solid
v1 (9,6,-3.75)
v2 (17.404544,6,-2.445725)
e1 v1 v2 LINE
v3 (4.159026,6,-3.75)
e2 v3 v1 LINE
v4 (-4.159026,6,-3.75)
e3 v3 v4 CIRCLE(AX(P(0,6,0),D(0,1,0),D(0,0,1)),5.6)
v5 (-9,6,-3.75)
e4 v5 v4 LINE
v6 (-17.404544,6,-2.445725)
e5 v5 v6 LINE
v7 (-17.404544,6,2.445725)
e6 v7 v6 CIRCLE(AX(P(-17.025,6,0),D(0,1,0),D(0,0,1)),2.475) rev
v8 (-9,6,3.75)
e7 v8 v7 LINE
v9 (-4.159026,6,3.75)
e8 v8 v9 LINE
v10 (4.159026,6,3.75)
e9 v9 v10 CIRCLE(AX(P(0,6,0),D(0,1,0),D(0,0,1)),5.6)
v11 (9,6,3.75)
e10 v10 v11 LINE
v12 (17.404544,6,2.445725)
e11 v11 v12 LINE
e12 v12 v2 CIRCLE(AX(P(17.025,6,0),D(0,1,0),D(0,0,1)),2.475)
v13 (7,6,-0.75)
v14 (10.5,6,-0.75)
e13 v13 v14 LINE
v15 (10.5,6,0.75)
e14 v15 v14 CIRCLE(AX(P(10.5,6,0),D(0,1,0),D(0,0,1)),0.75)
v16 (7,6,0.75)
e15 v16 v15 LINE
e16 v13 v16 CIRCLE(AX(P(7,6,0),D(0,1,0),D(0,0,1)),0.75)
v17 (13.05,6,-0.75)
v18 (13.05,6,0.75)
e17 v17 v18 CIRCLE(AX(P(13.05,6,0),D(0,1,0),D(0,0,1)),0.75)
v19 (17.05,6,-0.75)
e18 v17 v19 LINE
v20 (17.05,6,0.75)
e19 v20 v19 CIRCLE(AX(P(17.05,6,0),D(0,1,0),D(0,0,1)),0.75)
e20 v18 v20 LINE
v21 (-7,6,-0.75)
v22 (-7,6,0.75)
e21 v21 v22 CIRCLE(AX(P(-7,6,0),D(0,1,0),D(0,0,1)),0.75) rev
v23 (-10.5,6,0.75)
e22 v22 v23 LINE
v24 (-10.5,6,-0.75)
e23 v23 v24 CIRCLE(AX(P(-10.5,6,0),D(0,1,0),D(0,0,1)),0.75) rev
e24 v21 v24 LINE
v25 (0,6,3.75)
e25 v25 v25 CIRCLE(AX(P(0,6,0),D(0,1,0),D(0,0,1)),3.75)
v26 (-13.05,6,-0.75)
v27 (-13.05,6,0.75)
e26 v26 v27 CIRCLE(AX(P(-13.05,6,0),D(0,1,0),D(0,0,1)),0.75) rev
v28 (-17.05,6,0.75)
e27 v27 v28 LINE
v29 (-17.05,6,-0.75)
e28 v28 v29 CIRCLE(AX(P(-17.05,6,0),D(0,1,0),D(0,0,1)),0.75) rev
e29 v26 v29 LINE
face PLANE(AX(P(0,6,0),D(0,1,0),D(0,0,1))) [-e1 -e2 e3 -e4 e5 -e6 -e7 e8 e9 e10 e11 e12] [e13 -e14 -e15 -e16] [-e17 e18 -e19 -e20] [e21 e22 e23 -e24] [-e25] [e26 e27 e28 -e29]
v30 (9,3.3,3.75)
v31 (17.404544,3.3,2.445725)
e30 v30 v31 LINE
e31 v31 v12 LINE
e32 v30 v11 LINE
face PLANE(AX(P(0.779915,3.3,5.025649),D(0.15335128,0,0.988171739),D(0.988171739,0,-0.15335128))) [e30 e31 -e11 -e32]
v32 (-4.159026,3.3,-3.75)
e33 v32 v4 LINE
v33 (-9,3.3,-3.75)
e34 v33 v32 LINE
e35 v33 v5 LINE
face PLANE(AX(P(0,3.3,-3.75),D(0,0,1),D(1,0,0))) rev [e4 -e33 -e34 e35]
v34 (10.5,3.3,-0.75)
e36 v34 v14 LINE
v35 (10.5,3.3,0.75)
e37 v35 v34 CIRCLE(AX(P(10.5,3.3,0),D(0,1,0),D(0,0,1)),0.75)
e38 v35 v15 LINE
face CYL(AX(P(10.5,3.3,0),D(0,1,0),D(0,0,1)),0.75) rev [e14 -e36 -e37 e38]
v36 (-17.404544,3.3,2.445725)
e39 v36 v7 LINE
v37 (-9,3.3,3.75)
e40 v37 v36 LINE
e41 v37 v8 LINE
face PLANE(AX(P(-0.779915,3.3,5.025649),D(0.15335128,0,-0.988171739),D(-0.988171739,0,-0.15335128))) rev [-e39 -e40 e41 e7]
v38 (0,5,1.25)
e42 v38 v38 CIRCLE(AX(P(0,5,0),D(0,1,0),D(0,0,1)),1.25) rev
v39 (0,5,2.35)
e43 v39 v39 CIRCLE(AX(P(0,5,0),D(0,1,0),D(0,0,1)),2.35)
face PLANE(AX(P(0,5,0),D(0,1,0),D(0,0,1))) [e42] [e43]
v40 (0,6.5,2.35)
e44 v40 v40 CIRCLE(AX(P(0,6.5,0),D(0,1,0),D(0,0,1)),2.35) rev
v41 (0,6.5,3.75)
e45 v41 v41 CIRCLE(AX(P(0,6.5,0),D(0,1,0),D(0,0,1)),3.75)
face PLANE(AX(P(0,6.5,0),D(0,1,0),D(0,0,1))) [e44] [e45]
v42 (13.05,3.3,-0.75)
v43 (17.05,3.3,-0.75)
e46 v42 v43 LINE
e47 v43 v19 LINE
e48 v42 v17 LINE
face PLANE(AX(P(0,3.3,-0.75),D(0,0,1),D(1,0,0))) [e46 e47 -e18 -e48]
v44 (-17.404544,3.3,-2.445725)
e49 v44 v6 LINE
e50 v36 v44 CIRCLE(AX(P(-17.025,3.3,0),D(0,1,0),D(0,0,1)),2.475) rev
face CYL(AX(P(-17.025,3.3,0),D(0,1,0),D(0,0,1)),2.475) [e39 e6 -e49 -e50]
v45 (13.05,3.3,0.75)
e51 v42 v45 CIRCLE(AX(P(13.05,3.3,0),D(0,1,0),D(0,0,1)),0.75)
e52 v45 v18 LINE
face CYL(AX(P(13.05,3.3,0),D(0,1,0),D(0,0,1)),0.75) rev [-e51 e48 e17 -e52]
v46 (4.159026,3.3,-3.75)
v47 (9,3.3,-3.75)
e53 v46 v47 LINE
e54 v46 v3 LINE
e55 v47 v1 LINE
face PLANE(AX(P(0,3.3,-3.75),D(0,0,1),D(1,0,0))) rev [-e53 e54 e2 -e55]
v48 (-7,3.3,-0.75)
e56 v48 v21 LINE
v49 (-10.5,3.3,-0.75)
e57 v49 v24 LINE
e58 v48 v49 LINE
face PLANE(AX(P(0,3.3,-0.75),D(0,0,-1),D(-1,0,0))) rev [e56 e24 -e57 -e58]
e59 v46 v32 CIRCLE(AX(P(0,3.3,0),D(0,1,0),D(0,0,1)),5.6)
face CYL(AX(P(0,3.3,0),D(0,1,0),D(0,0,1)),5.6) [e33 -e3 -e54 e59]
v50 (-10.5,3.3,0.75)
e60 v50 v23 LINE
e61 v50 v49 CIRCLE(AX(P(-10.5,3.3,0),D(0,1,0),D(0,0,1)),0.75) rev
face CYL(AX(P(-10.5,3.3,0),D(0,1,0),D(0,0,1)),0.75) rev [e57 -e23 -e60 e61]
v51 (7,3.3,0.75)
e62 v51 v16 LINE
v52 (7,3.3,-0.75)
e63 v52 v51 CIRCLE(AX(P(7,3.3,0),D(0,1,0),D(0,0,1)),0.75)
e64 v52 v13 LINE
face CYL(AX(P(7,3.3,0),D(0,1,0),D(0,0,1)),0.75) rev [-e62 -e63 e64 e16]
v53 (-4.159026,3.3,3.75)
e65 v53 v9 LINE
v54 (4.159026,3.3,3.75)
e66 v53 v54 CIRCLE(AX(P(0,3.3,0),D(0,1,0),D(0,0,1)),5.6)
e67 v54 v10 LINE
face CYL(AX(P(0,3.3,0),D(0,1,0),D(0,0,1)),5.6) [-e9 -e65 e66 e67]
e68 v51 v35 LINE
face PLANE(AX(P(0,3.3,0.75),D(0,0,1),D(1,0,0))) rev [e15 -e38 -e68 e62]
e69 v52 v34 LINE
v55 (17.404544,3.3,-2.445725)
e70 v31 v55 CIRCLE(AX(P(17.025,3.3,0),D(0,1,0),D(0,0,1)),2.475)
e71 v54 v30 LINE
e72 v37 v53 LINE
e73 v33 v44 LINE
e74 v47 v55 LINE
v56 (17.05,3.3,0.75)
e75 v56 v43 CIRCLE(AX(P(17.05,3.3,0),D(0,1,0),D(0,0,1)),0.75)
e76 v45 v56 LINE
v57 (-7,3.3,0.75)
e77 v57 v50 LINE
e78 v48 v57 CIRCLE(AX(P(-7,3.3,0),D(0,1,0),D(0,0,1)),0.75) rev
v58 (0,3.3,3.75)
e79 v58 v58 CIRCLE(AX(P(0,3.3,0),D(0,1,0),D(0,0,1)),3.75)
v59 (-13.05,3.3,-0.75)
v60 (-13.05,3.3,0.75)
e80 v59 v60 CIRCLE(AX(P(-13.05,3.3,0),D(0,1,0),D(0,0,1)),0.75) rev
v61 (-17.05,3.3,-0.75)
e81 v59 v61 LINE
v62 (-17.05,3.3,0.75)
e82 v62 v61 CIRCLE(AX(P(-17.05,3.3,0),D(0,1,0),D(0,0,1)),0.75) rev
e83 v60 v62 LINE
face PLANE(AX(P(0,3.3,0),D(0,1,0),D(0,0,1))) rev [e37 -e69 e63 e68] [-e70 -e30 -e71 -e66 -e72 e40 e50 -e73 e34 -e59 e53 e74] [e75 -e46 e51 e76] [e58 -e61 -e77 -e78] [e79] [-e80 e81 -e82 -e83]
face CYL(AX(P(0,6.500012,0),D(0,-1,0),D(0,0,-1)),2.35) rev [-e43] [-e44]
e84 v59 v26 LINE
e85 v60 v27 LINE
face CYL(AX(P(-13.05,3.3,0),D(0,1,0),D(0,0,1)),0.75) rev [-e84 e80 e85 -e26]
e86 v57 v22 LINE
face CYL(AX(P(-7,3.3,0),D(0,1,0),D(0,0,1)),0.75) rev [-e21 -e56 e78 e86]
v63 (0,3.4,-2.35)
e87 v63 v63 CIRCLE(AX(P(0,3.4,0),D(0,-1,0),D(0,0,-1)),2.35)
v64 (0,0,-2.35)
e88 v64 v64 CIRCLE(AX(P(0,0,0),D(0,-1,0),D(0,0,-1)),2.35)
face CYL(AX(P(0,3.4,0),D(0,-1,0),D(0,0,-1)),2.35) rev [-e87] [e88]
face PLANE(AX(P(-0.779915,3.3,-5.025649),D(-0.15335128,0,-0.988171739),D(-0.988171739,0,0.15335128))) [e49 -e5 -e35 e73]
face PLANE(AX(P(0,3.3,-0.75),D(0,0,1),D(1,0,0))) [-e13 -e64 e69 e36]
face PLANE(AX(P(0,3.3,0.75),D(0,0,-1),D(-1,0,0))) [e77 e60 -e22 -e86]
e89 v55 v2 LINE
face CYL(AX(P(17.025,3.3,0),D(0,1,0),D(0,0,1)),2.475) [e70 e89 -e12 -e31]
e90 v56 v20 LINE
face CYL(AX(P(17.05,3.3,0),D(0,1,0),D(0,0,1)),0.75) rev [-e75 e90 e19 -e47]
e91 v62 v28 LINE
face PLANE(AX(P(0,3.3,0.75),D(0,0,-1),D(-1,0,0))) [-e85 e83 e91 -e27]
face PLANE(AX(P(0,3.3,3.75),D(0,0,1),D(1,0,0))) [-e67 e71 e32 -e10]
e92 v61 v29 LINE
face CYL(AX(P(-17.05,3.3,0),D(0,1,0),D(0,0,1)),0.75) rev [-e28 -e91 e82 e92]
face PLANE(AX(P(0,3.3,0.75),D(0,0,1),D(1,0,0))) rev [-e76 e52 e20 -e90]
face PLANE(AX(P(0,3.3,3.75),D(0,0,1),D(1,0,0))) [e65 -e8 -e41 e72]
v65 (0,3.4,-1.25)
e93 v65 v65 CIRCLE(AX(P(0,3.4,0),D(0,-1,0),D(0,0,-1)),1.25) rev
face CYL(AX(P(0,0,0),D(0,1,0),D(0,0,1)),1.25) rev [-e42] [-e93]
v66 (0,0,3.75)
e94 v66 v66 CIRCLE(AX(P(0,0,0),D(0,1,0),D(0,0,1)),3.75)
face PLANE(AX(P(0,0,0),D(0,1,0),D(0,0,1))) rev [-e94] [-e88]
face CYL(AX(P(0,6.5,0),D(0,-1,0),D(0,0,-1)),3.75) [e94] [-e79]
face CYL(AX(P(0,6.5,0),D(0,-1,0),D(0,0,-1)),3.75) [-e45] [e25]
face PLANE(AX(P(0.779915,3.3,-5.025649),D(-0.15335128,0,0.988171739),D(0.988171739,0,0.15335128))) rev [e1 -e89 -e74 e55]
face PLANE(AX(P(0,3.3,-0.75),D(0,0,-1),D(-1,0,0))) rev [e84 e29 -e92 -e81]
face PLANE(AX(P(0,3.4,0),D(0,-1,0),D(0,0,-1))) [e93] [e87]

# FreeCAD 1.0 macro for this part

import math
import FreeCAD as App
import Part
import Sketcher
from FreeCAD import Vector
Q = App.Units.Quantity

doc = App.newDocument("Part")
body = doc.addObject("PartDesign::Body", "Body")

sketch1 = doc.addObject("Sketcher::SketchObject", "Sketch")
body.addObject(sketch1)
sketch1.AttachmentSupport = (doc.XZ_Plane, [""])
sketch1.MapMode = "FlatFace"
sketch1.addGeometry(Part.Circle(Vector(0, 0, 0), Vector(0, 0, 1), 3.8), False)
sketch1.addConstraint(Sketcher.Constraint("Coincident", 0, 3, -1, 1))
sketch1.addConstraint(Sketcher.Constraint("Diameter", 0, Q("7.5 mm")))
pad1 = doc.addObject("PartDesign::Pad", "Pad")
body.addObject(pad1)
pad1.Profile = sketch1
pad1.Length = 6.5
pad1.Reversed = True

sketch2 = doc.addObject("Sketcher::SketchObject", "Sketch001")
body.addObject(sketch2)
sketch2.AttachmentSupport = (doc.XZ_Plane, [""])
sketch2.MapMode = "FlatFace"
sketch2.AttachmentOffset = App.Placement(Vector(0, 0, -6.5), App.Rotation())
sketch2.addGeometry(Part.Circle(Vector(0, 0, 0), Vector(0, 0, 1), 1.2), False)
sketch2.addConstraint(Sketcher.Constraint("Coincident", 0, 3, -1, 1))
sketch2.addConstraint(Sketcher.Constraint("Diameter", 0, Q("2.5 mm")))
pocket1 = doc.addObject("PartDesign::Pocket", "Pocket")
body.addObject(pocket1)
pocket1.Profile = sketch2
pocket1.Type = "ThroughAll"
pocket1.Midplane = True

sketch3 = doc.addObject("Sketcher::SketchObject", "Sketch002")
body.addObject(sketch3)
sketch3.AttachmentSupport = (doc.XZ_Plane, [""])
sketch3.MapMode = "FlatFace"
sketch3.AttachmentOffset = App.Placement(Vector(0, 0, -6.5), App.Rotation())
sketch3.addGeometry(Part.Circle(Vector(0, 0, 0), Vector(0, 0, 1), 2.4), False)
sketch3.addConstraint(Sketcher.Constraint("Coincident", 0, 3, -1, 1))
sketch3.addConstraint(Sketcher.Constraint("Diameter", 0, Q("4.7 mm")))
pocket2 = doc.addObject("PartDesign::Pocket", "Pocket001")
body.addObject(pocket2)
pocket2.Profile = sketch3
pocket2.Type = "TwoLengths"
pocket2.Length = 1
pocket2.Length2 = 1.5

sketch4 = doc.addObject("Sketcher::SketchObject", "Sketch003")
body.addObject(sketch4)
sketch4.AttachmentSupport = (doc.XZ_Plane, [""])
sketch4.MapMode = "FlatFace"
sketch4.addGeometry(Part.Circle(Vector(0, 0, 0), Vector(0, 0, 1), 2.4), False)
sketch4.addConstraint(Sketcher.Constraint("Coincident", 0, 3, -1, 1))
sketch4.addConstraint(Sketcher.Constraint("Diameter", 0, Q("4.7 mm")))
pocket3 = doc.addObject("PartDesign::Pocket", "Pocket002")
body.addObject(pocket3)
pocket3.Profile = sketch4
pocket3.Length = 3.4

sketch5 = doc.addObject("Sketcher::SketchObject", "Sketch004")
body.addObject(sketch5)
sketch5.AttachmentSupport = (doc.XZ_Plane, [""])
sketch5.MapMode = "FlatFace"
sketch5.AttachmentOffset = App.Placement(Vector(0, 0, -6), App.Rotation())
sketch5.addGeometry(Part.LineSegment(Vector(-9, 3.8, 0), Vector(-4.2, 3.8, 0)), False)
sketch5.addGeometry(Part.ArcOfCircle(Part.Circle(Vector(0, 0, 0), Vector(0, 0, 1), 5.6), math.radians(42), math.radians(138)), False)
sketch5.addGeometry(Part.LineSegment(Vector(4.2, 3.8, 0), Vector(9, 3.8, 0)), False)
sketch5.addGeometry(Part.LineSegment(Vector(9, 3.8, 0), Vector(17.4, 2.4, 0)), False)
sketch5.addGeometry(Part.ArcOfCircle(Part.Circle(Vector(17, 0, 0), Vector(0, 0, 1), 2.5), math.radians(-81), math.radians(81)), False)
sketch5.addGeometry(Part.LineSegment(Vector(17.4, -2.4, 0), Vector(9, -3.8, 0)), False)
sketch5.addGeometry(Part.LineSegment(Vector(9, -3.8, 0), Vector(4.2, -3.8, 0)), False)
sketch5.addGeometry(Part.ArcOfCircle(Part.Circle(Vector(0, 0, 0), Vector(0, 0, 1), 5.6), math.radians(-138), math.radians(-42)), False)
sketch5.addGeometry(Part.LineSegment(Vector(-4.2, -3.8, 0), Vector(-9, -3.8, 0)), False)
sketch5.addGeometry(Part.LineSegment(Vector(-9, -3.8, 0), Vector(-17.4, -2.4, 0)), False)
sketch5.addGeometry(Part.ArcOfCircle(Part.Circle(Vector(-17, 0, 0), Vector(0, 0, 1), 2.5), math.radians(99), math.radians(261)), False)
sketch5.addGeometry(Part.LineSegment(Vector(-17.4, 2.4, 0), Vector(-9, 3.8, 0)), False)
sketch5.addGeometry(Part.LineSegment(Vector(-17.1, -0.8, 0), Vector(-13.1, -0.8, 0)), False)
sketch5.addGeometry(Part.ArcOfCircle(Part.Circle(Vector(-13.1, 0, 0), Vector(0, 0, 1), 0.8), math.radians(-90), math.radians(90)), False)
sketch5.addGeometry(Part.LineSegment(Vector(-13.1, 0.8, 0), Vector(-17.1, 0.8, 0)), False)
sketch5.addGeometry(Part.ArcOfCircle(Part.Circle(Vector(-17.1, 0, 0), Vector(0, 0, 1), 0.8), math.radians(90), math.radians(270)), False)
sketch5.addGeometry(Part.LineSegment(Vector(-10.5, -0.8, 0), Vector(-7, -0.8, 0)), False)
sketch5.addGeometry(Part.ArcOfCircle(Part.Circle(Vector(-7, 0, 0), Vector(0, 0, 1), 0.8), math.radians(-90), math.radians(90)), False)
sketch5.addGeometry(Part.LineSegment(Vector(-7, 0.8, 0), Vector(-10.5, 0.8, 0)), False)
sketch5.addGeometry(Part.ArcOfCircle(Part.Circle(Vector(-10.5, 0, 0), Vector(0, 0, 1), 0.8), math.radians(90), math.radians(270)), False)
sketch5.addGeometry(Part.Circle(Vector(0, 0, 0), Vector(0, 0, 1), 3.8), False)
sketch5.addGeometry(Part.LineSegment(Vector(10.5, 0.8, 0), Vector(7, 0.8, 0)), False)
sketch5.addGeometry(Part.ArcOfCircle(Part.Circle(Vector(7, 0, 0), Vector(0, 0, 1), 0.8), math.radians(90), math.radians(270)), False)
sketch5.addGeometry(Part.LineSegment(Vector(7, -0.8, 0), Vector(10.5, -0.8, 0)), False)
sketch5.addGeometry(Part.ArcOfCircle(Part.Circle(Vector(10.5, 0, 0), Vector(0, 0, 1), 0.8), math.radians(-90), math.radians(90)), False)
sketch5.addGeometry(Part.LineSegment(Vector(13.1, -0.8, 0), Vector(17.1, -0.8, 0)), False)
sketch5.addGeometry(Part.ArcOfCircle(Part.Circle(Vector(17.1, 0, 0), Vector(0, 0, 1), 0.8), math.radians(-90), math.radians(90)), False)
sketch5.addGeometry(Part.LineSegment(Vector(17.1, 0.8, 0), Vector(13.1, 0.8, 0)), False)
sketch5.addGeometry(Part.ArcOfCircle(Part.Circle(Vector(13.1, 0, 0), Vector(0, 0, 1), 0.8), math.radians(90), math.radians(270)), False)
sketch5.addConstraint(Sketcher.Constraint("Coincident", 0, 2, 1, 2))
sketch5.addConstraint(Sketcher.Constraint("Coincident", 1, 1, 2, 1))
sketch5.addConstraint(Sketcher.Constraint("Coincident", 2, 2, 3, 1))
sketch5.addConstraint(Sketcher.Constraint("Tangent", 3, 2, 4, 2))
sketch5.addConstraint(Sketcher.Constraint("Tangent", 4, 1, 5, 1))
sketch5.addConstraint(Sketcher.Constraint("Coincident", 5, 2, 6, 1))
sketch5.addConstraint(Sketcher.Constraint("Coincident", 6, 2, 7, 2))
sketch5.addConstraint(Sketcher.Constraint("Coincident", 7, 1, 8, 1))
sketch5.addConstraint(Sketcher.Constraint("Coincident", 8, 2, 9, 1))
sketch5.addConstraint(Sketcher.Constraint("Tangent", 9, 2, 10, 2))
sketch5.addConstraint(Sketcher.Constraint("Tangent", 10, 1, 11, 1))
sketch5.addConstraint(Sketcher.Constraint("Coincident", 11, 2, 0, 1))
sketch5.addConstraint(Sketcher.Constraint("Tangent", 12, 2, 13, 1))
sketch5.addConstraint(Sketcher.Constraint("Tangent", 13, 2, 14, 1))
sketch5.addConstraint(Sketcher.Constraint("Tangent", 14, 2, 15, 1))
sketch5.addConstraint(Sketcher.Constraint("Tangent", 15, 2, 12, 1))
sketch5.addConstraint(Sketcher.Constraint("Tangent", 16, 2, 17, 1))
sketch5.addConstraint(Sketcher.Constraint("Tangent", 17, 2, 18, 1))
sketch5.addConstraint(Sketcher.Constraint("Tangent", 18, 2, 19, 1))
sketch5.addConstraint(Sketcher.Constraint("Tangent", 19, 2, 16, 1))
sketch5.addConstraint(Sketcher.Constraint("Tangent", 21, 2, 22, 1))
sketch5.addConstraint(Sketcher.Constraint("Tangent", 22, 2, 23, 1))
sketch5.addConstraint(Sketcher.Constraint("Tangent", 23, 2, 24, 1))
sketch5.addConstraint(Sketcher.Constraint("Tangent", 24, 2, 21, 1))
sketch5.addConstraint(Sketcher.Constraint("Tangent", 25, 2, 26, 1))
sketch5.addConstraint(Sketcher.Constraint("Tangent", 26, 2, 27, 1))
sketch5.addConstraint(Sketcher.Constraint("Tangent", 27, 2, 28, 1))
sketch5.addConstraint(Sketcher.Constraint("Tangent", 28, 2, 25, 1))
sketch5.addConstraint(Sketcher.Constraint("Horizontal", 0))
sketch5.addConstraint(Sketcher.Constraint("Horizontal", 2))
sketch5.addConstraint(Sketcher.Constraint("Horizontal", 6))
sketch5.addConstraint(Sketcher.Constraint("Horizontal", 8))
sketch5.addConstraint(Sketcher.Constraint("Horizontal", 12))
sketch5.addConstraint(Sketcher.Constraint("Horizontal", 14))
sketch5.addConstraint(Sketcher.Constraint("Horizontal", 16))
sketch5.addConstraint(Sketcher.Constraint("Horizontal", 18))
sketch5.addConstraint(Sketcher.Constraint("Horizontal", 21))
sketch5.addConstraint(Sketcher.Constraint("Horizontal", 23))
sketch5.addConstraint(Sketcher.Constraint("Horizontal", 25))
sketch5.addConstraint(Sketcher.Constraint("Horizontal", 27))
sketch5.addConstraint(Sketcher.Constraint("Coincident", 1, 3, -1, 1))
sketch5.addConstraint(Sketcher.Constraint("Coincident", 7, 3, -1, 1))
sketch5.addConstraint(Sketcher.Constraint("Coincident", 20, 3, -1, 1))
sketch5.addConstraint(Sketcher.Constraint("Equal", 1, 7))
sketch5.addConstraint(Sketcher.Constraint("Equal", 4, 10))
sketch5.addConstraint(Sketcher.Constraint("Equal", 15, 17))
sketch5.addConstraint(Sketcher.Constraint("Equal", 19, 22))
sketch5.addConstraint(Sketcher.Constraint("Equal", 24, 26))
sketch5.addConstraint(Sketcher.Constraint("Symmetric", 4, 3, 10, 3, -1, 1))
sketch5.addConstraint(Sketcher.Constraint("Symmetric", 17, 3, 22, 3, -1, 1))
sketch5.addConstraint(Sketcher.Constraint("Symmetric", 15, 3, 26, 3, -1, 1))
sketch5.addConstraint(Sketcher.Constraint("Symmetric", 2, 2, 8, 2, -1, 1))
sketch5.addConstraint(Sketcher.Constraint("Symmetric", 5, 2, 11, 2, -1, 1))
sketch5.addConstraint(Sketcher.Constraint("Symmetric", 19, 3, 24, 3, -2))
sketch5.addConstraint(Sketcher.Constraint("Symmetric", 13, 3, 28, 3, -2))
sketch5.addConstraint(Sketcher.Constraint("Symmetric", 5, 2, 8, 2, -2))
sketch5.addConstraint(Sketcher.Constraint("PointOnObject", 4, 3, -1))
sketch5.addConstraint(Sketcher.Constraint("Diameter", 20, Q("7.5 mm")))
sketch5.addConstraint(Sketcher.Constraint("Radius", 1, Q("5.6 mm")))
sketch5.addConstraint(Sketcher.Constraint("DistanceX", 12, 1, 12, 2, Q("4 mm")))
sketch5.addConstraint(Sketcher.Constraint("Radius", 13, Q("0.75 mm")))
sketch5.addConstraint(Sketcher.Constraint("DistanceX", 16, 1, 16, 2, Q("3.5 mm")))
sketch5.addConstraint(Sketcher.Constraint("DistanceX", 17, 3, -1, 1, Q("7 mm")))
sketch5.addConstraint(Sketcher.Constraint("DistanceX", -1, 1, 2, 2, Q("9 mm")))
sketch5.addConstraint(Sketcher.Constraint("Radius", 4, Q("2.475 mm")))
sketch5.addConstraint(Sketcher.Constraint("DistanceY", 8, 2, 16, 2, Q("3 mm")))
sketch5.addConstraint(Sketcher.Constraint("DistanceX", 13, 3, -1, 1, Q("13.05 mm")))
sketch5.addConstraint(Sketcher.Constraint("DistanceX", 10, 3, 4, 3, Q("34.05 mm")))
pad2 = doc.addObject("PartDesign::Pad", "Pad001")
body.addObject(pad2)
pad2.Profile = sketch5
pad2.Length = 2.7

doc.recompute()
